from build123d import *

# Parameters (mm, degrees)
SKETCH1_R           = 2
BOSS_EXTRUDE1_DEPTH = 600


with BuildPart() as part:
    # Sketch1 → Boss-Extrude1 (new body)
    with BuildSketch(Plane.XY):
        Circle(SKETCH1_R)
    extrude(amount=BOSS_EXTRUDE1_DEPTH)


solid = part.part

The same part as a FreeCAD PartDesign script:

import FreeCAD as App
import Part
import Sketcher
Q = App.Units.Quantity

doc = App.newDocument("Part")
params = doc.addObject("Spreadsheet::Sheet", "Params")
for row, (alias, value) in enumerate([
    ("sketch1_diameter", "4 mm"),
    ("pad1_length", "600 mm"),
], start=1):
    params.set(f"A{row}", alias)
    params.set(f"B{row}", "=" + value)
    params.setAlias(f"B{row}", alias)

body = doc.addObject("PartDesign::Body", "Body")

sketch1 = doc.addObject("Sketcher::SketchObject", "Sketch")
body.addObject(sketch1)
sketch1.AttachmentSupport = (doc.XY_Plane, [""])
sketch1.MapMode = "FlatFace"
sketch1.addGeometry(Part.Circle(App.Vector(0, 0, 0), App.Vector(0, 0, 1), 2), False)
sketch1.addConstraint(Sketcher.Constraint("Coincident", 0, 3, -1, 1))
sketch1.addConstraint(Sketcher.Constraint("Diameter", 0, Q("4 mm")))
sketch1.setExpression("Constraints[1]", "Params.sketch1_diameter")
pad1 = doc.addObject("PartDesign::Pad", "Pad")
body.addObject(pad1)
pad1.Profile = sketch1
pad1.setExpression("Length", "Params.pad1_length")

doc.recompute()
